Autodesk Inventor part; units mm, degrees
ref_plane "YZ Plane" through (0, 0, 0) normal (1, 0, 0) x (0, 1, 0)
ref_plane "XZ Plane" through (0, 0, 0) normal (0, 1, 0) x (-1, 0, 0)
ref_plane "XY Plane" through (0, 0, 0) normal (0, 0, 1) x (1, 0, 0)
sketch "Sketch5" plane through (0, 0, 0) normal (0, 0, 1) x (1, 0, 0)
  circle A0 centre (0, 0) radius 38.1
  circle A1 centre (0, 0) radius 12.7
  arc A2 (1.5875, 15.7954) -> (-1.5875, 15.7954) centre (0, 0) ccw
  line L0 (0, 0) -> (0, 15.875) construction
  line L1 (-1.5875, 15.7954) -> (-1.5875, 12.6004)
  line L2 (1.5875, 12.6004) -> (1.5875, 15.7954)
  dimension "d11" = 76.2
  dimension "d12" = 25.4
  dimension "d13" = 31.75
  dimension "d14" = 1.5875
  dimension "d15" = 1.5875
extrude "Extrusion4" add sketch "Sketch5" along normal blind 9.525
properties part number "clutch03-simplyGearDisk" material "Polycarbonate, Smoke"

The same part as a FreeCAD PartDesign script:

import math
import FreeCAD as App
import Part
import Sketcher

V = App.Vector
Q = App.Units.Quantity

doc = App.newDocument("Part")
body = doc.addObject("PartDesign::Body", "Body")

# Sketch on XY plane
sketch1 = body.newObject("Sketcher::SketchObject", "Sketch")
sketch1.AttachmentSupport = (doc.getObject("XY_Plane"), [""])
sketch1.MapMode = "FlatFace"
sketch1.addGeometry([
    Part.Circle(V(0, 0, 0), V(0, 0, 1), 38.1),  # 0
    Part.ArcOfCircle(Part.Circle(V(0, 0, 0), V(0, 0, 1), 12.7), math.radians(97.18075), math.radians(442.81925)),  # 1
    Part.LineSegment(V(-1.5875, 12.6004, 0), V(-1.5875, 15.7954, 0)),  # 2
    Part.ArcOfCircle(Part.Circle(V(0, 0, 0), V(0, 0, 1), 15.874975), math.radians(84.26082), math.radians(95.73918)),  # 3
    Part.LineSegment(V(1.5875, 15.7954, 0), V(1.5875, 12.6004, 0)),  # 4
], False)
sketch1.addConstraint([
    Sketcher.Constraint("Coincident", 1, 1, 2, 1),
    Sketcher.Constraint("Coincident", 2, 2, 3, 2),
    Sketcher.Constraint("Coincident", 3, 1, 4, 1),
    Sketcher.Constraint("Coincident", 4, 2, 1, 2),
    Sketcher.Constraint("Vertical", 2),
    Sketcher.Constraint("Vertical", 4),
    Sketcher.Constraint("Coincident", 0, 3, -1, 1),
    Sketcher.Constraint("Coincident", 1, 3, -1, 1),
    Sketcher.Constraint("Coincident", 3, 3, -1, 1),
    Sketcher.Constraint("Horizontal", 2, 2, 3, 1),
    Sketcher.Constraint("Diameter", 0, Q("3 in")),
    Sketcher.Constraint("Radius", 1, Q("0.5 in")),
    Sketcher.Constraint("Radius", 3, Q("0.625 in")),
    Sketcher.Constraint("DistanceX", 1, 1, -1, 1, Q("0.0625 in")),
])
pad1 = body.newObject("PartDesign::Pad", "Pad")
pad1.Profile = sketch1
pad1.Length = Q("0.375 in")

doc.recompute()
